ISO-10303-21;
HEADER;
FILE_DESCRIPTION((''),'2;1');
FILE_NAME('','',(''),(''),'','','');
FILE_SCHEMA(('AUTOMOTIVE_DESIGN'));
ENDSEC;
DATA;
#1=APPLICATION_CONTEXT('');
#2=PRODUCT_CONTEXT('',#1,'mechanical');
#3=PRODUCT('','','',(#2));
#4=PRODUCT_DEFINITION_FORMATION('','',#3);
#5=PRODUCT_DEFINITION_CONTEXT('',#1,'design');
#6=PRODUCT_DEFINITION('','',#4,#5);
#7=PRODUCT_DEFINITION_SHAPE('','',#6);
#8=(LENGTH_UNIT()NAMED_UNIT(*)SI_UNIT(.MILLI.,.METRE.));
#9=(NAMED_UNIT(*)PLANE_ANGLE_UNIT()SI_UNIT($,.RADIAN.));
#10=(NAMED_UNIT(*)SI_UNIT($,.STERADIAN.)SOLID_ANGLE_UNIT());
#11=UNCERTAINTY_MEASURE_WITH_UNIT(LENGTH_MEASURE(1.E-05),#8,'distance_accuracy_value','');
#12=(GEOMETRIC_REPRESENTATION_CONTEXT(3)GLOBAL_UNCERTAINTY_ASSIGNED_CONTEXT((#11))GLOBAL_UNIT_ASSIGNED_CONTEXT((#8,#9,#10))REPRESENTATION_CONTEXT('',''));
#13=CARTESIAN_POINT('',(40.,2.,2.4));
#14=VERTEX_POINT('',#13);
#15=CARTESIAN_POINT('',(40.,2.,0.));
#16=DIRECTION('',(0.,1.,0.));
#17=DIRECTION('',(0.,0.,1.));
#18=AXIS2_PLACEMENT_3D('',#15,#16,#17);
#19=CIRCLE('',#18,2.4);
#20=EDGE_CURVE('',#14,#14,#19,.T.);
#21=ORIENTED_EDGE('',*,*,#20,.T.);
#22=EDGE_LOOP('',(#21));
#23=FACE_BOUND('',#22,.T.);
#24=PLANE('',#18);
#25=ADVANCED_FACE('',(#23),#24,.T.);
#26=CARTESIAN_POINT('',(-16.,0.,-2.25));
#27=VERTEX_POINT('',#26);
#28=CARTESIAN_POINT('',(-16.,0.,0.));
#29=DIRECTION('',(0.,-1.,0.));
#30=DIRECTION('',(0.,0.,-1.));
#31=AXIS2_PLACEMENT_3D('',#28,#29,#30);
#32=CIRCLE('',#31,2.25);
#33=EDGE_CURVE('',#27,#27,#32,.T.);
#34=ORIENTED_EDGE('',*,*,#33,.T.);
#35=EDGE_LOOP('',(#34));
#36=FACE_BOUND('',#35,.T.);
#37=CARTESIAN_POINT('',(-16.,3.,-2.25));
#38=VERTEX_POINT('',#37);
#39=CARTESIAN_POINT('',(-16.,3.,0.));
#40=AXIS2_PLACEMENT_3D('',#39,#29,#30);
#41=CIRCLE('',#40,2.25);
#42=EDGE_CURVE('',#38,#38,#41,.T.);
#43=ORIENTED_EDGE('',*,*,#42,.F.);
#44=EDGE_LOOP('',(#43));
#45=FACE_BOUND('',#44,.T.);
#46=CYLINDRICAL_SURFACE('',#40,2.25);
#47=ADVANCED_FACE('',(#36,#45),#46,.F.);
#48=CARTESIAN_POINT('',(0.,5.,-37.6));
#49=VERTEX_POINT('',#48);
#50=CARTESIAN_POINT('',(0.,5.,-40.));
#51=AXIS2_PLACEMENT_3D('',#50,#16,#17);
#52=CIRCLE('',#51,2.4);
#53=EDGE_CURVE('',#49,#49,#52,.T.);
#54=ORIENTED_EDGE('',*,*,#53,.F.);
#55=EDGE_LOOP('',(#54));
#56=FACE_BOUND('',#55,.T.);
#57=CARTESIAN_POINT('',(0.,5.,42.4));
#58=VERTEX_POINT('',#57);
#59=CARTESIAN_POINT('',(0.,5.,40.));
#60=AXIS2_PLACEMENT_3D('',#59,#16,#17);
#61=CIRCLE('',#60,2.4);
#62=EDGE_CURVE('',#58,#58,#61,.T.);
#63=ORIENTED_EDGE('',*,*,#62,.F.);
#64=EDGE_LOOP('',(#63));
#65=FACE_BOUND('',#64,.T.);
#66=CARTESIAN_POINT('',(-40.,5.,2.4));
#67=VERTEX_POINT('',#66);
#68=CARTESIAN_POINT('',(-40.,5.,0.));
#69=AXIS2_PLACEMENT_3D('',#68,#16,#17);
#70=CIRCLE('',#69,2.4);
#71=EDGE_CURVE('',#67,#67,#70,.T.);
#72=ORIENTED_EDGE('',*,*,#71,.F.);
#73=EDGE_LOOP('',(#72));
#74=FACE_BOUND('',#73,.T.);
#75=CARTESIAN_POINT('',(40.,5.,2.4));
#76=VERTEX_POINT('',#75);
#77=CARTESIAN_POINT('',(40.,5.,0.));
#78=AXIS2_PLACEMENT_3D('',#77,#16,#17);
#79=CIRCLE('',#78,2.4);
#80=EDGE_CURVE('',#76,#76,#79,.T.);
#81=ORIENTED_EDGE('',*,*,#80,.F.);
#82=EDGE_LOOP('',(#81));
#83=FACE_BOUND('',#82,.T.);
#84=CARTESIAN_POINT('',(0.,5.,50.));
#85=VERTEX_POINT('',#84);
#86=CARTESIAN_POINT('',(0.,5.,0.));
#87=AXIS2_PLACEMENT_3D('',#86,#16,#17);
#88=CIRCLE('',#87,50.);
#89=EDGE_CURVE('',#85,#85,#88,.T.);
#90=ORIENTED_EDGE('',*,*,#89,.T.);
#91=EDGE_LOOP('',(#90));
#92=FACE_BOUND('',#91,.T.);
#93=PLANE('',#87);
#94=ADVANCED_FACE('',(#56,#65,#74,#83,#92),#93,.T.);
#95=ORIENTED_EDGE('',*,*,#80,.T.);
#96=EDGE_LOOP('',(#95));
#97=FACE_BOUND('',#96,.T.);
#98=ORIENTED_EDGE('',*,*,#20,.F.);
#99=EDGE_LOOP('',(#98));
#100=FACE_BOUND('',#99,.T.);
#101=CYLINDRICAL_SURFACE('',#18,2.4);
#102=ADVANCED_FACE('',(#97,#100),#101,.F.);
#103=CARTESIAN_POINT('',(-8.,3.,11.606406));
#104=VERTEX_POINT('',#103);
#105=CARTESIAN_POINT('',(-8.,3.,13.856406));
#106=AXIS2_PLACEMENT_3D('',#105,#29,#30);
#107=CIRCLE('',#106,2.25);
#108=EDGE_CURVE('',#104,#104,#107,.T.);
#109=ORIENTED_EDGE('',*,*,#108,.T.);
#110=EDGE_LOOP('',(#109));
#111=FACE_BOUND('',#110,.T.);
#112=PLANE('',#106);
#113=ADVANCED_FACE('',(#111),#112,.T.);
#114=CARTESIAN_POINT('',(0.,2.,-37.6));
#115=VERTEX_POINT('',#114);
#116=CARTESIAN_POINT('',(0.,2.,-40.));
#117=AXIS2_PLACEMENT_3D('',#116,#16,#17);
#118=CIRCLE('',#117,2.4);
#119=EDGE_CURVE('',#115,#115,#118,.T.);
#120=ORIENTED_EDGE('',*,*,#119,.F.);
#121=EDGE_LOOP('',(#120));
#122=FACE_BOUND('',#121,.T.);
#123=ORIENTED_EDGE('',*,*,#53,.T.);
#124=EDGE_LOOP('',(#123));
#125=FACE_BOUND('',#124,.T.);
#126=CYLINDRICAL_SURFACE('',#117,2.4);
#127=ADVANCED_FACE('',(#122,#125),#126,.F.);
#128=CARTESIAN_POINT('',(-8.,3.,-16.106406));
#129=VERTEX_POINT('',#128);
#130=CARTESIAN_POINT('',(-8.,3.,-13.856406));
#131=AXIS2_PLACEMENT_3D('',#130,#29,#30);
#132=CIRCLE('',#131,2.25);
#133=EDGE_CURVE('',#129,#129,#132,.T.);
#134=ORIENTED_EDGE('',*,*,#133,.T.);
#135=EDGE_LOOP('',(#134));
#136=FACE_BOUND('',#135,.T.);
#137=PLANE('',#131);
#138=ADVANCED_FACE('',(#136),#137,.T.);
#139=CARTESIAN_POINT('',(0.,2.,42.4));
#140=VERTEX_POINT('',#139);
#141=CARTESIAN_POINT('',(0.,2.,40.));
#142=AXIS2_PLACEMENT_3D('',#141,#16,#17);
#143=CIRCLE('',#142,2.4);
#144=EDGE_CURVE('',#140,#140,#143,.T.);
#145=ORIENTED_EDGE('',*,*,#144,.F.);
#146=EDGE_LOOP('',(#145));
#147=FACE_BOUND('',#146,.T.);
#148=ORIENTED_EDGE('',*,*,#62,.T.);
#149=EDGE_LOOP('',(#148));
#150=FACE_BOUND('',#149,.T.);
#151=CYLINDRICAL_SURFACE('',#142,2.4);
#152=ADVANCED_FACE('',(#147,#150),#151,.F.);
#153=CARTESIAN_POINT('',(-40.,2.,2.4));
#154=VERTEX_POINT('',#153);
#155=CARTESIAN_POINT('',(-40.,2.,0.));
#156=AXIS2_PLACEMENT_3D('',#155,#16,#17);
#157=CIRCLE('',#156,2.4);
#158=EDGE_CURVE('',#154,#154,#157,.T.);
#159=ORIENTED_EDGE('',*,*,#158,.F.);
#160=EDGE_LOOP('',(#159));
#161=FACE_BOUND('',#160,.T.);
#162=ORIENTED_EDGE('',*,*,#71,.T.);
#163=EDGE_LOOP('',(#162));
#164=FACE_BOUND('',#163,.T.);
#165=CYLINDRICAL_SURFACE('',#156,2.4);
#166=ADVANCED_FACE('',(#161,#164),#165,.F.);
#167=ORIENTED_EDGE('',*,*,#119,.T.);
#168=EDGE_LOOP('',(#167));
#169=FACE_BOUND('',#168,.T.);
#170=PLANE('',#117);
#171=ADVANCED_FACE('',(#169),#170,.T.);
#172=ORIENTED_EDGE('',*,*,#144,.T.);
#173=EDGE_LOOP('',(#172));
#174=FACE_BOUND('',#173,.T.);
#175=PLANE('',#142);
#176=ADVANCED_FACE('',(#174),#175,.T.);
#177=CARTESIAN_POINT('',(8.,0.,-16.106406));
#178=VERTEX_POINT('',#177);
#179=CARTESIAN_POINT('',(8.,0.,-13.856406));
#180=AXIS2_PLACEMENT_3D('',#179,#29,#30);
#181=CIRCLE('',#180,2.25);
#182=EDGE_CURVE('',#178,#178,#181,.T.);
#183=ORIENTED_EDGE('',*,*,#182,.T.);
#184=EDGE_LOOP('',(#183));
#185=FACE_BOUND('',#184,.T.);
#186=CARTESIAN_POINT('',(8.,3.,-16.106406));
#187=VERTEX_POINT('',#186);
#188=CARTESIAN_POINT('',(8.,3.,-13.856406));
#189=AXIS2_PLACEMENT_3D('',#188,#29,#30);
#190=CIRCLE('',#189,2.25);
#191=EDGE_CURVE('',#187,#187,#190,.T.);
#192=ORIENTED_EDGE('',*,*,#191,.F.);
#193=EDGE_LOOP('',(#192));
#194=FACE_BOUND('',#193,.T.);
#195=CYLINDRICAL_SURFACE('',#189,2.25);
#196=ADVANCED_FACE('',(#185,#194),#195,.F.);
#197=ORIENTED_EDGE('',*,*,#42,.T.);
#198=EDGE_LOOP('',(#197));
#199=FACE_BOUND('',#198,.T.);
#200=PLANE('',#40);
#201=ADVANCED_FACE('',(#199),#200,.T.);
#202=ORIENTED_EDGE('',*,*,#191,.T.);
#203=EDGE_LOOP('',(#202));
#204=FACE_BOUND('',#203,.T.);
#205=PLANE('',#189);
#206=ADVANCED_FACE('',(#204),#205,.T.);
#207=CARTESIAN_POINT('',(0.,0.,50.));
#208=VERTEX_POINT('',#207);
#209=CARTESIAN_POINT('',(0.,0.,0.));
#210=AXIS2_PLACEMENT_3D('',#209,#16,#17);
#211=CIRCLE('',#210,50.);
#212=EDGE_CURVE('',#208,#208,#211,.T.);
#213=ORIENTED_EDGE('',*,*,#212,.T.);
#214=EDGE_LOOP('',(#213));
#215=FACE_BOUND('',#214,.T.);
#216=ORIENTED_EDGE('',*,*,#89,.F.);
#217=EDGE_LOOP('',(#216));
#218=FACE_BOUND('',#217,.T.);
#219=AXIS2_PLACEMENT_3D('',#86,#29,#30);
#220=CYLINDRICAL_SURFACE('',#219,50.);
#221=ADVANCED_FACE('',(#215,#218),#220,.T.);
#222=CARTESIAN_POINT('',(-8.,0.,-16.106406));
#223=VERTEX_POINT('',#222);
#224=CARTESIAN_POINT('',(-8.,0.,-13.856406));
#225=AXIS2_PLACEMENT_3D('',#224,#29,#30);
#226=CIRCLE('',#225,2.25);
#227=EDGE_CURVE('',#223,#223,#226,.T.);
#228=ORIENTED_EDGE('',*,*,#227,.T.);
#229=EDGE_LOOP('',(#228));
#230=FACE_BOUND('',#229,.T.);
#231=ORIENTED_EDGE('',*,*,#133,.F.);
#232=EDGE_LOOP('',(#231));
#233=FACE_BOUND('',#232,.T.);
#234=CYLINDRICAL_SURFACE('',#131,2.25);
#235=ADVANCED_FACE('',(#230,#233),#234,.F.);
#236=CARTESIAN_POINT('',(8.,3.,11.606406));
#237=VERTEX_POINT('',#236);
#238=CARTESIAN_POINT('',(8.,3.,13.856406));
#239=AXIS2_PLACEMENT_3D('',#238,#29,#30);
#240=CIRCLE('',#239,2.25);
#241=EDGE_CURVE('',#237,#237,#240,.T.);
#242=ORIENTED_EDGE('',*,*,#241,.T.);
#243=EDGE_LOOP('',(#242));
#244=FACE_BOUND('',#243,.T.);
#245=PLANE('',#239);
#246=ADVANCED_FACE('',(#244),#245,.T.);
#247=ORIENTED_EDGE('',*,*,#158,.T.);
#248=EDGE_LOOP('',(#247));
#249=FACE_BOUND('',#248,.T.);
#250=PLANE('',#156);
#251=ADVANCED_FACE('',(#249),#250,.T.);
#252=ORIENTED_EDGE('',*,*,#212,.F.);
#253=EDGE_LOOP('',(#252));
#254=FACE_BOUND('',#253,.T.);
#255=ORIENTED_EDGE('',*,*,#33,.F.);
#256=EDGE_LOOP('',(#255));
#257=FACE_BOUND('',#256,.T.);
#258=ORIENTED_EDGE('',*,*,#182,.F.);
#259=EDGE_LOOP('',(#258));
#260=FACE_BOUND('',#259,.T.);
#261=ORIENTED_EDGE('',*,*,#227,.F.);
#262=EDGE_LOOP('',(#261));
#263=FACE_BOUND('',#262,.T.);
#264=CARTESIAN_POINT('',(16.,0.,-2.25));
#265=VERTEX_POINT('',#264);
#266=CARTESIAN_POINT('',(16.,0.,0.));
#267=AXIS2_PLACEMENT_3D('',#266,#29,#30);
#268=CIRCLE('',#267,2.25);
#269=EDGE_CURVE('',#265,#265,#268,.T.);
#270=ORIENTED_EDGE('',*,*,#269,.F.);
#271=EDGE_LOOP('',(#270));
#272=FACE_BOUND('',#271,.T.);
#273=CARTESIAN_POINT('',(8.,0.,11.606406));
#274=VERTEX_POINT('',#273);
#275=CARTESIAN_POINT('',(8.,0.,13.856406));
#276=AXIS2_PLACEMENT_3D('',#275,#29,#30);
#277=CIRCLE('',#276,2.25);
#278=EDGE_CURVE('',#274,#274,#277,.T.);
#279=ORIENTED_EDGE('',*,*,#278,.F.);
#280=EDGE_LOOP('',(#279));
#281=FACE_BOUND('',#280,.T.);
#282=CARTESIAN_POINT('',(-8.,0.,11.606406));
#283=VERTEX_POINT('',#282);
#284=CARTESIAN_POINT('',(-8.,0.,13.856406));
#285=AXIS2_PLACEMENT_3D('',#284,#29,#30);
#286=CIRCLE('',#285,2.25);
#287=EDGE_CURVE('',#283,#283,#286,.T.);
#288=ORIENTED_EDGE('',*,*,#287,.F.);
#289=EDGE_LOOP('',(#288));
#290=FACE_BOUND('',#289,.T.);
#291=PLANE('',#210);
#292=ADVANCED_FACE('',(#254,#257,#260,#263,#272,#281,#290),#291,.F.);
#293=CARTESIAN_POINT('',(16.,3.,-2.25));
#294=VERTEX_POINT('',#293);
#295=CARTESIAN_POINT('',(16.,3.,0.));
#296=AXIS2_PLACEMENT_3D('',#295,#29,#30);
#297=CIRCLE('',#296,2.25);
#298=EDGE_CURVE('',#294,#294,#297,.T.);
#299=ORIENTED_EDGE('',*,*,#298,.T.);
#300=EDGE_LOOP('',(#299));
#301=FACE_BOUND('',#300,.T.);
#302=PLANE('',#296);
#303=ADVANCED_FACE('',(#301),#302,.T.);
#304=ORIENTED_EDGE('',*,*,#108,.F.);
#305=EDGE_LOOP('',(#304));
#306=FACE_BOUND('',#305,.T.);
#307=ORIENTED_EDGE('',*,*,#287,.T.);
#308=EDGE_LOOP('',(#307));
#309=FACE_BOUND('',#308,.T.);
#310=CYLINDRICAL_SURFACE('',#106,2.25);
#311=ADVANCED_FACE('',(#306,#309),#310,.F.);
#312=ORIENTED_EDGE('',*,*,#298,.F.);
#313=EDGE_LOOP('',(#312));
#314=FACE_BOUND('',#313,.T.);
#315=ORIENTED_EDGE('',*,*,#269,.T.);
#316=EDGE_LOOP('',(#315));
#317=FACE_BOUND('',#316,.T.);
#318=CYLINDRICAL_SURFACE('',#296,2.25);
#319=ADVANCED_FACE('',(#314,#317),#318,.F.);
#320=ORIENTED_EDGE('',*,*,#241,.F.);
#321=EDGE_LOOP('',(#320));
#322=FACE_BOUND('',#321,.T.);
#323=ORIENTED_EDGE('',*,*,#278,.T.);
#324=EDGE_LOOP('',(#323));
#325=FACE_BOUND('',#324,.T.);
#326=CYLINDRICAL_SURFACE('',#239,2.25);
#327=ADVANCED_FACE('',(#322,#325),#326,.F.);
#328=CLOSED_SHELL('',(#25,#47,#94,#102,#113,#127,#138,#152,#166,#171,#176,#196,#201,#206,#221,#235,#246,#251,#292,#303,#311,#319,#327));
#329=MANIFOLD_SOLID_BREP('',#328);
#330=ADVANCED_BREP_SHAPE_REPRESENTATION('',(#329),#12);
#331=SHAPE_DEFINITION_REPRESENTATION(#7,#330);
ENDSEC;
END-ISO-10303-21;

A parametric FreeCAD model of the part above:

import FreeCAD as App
import Part
import Sketcher

doc = App.newDocument("Part")
params = doc.addObject("Spreadsheet::Sheet", "Params")
for row, (alias, value) in enumerate([
    ("sketch1_diameter", "100 mm"),
    ("pad1_length", "5 mm"),
    ("sketch2_diameter", "4.5 mm"),
    ("pocket1_length", "3 mm"),
    ("sketch3_diameter", "4.8 mm"),
    ("pocket2_length", "3 mm"),
], start=1):
    params.set(f"A{row}", alias)
    params.set(f"B{row}", "=" + value)
    params.setAlias(f"B{row}", alias)

body = doc.addObject("PartDesign::Body", "Body")

# Sketch on XZ plane
sketch1 = body.newObject("Sketcher::SketchObject", "Sketch")
sketch1.AttachmentSupport = (doc.getObject("XZ_Plane"), [""])
sketch1.MapMode = "FlatFace"
sketch1.addGeometry(Part.Circle(App.Vector(0, 0, 0), App.Vector(0, 0, 1), 50), False)
sketch1.addConstraint(Sketcher.Constraint("Coincident", 0, 3, -1, 1))
sketch1.addConstraint(Sketcher.Constraint("Diameter", 0, 100.0))
sketch1.setExpression("Constraints[1]", "Params.sketch1_diameter")
pad1 = body.newObject("PartDesign::Pad", "Pad")
pad1.Profile = sketch1
pad1.setExpression("Length", "Params.pad1_length")
pad1.Reversed = True

# Sketch on XZ plane
sketch2 = body.newObject("Sketcher::SketchObject", "Sketch001")
sketch2.AttachmentSupport = (doc.getObject("XZ_Plane"), [""])
sketch2.MapMode = "FlatFace"
sketch2.addGeometry(Part.Circle(App.Vector(8, 13.9, 0), App.Vector(0, 0, 1), 2.2), False)
sketch2.addGeometry(Part.Circle(App.Vector(16, 0, 0), App.Vector(0, 0, 1), 2.2), False)
sketch2.addGeometry(Part.Circle(App.Vector(8, -13.9, 0), App.Vector(0, 0, 1), 2.2), False)
sketch2.addGeometry(Part.Circle(App.Vector(-8, -13.9, 0), App.Vector(0, 0, 1), 2.2), False)
sketch2.addGeometry(Part.Circle(App.Vector(-16, 0, 0), App.Vector(0, 0, 1), 2.2), False)
sketch2.addGeometry(Part.Circle(App.Vector(-8, 13.9, 0), App.Vector(0, 0, 1), 2.2), False)
sketch2.addConstraint(Sketcher.Constraint("Equal", 0, 1))
sketch2.addConstraint(Sketcher.Constraint("Equal", 1, 2))
sketch2.addConstraint(Sketcher.Constraint("Equal", 2, 3))
sketch2.addConstraint(Sketcher.Constraint("Equal", 3, 4))
sketch2.addConstraint(Sketcher.Constraint("Equal", 4, 5))
sketch2.addConstraint(Sketcher.Constraint("Symmetric", 0, 3, 3, 3, -1, 1))
sketch2.addConstraint(Sketcher.Constraint("Symmetric", 1, 3, 4, 3, -1, 1))
sketch2.addConstraint(Sketcher.Constraint("Symmetric", 2, 3, 5, 3, -1, 1))
sketch2.addConstraint(Sketcher.Constraint("Symmetric", 2, 3, 3, 3, -2))
sketch2.addConstraint(Sketcher.Constraint("PointOnObject", 1, 3, -1))
sketch2.addConstraint(Sketcher.Constraint("Diameter", 0, 4.5))
sketch2.addConstraint(Sketcher.Constraint("DistanceX", -1, 1, 0, 3, 8.0))
sketch2.addConstraint(Sketcher.Constraint("DistanceX", -1, 1, 1, 3, 16.0))
sketch2.addConstraint(Sketcher.Constraint("DistanceY", -1, 1, 0, 3, 13.856406))
sketch2.setExpression("Constraints[10]", "Params.sketch2_diameter")
pocket1 = body.newObject("PartDesign::Pocket", "Pocket")
pocket1.Profile = sketch2
pocket1.setExpression("Length", "Params.pocket1_length")

# Sketch on XZ plane
sketch3 = body.newObject("Sketcher::SketchObject", "Sketch002")
sketch3.AttachmentSupport = (doc.getObject("XZ_Plane"), [""])
sketch3.MapMode = "FlatFace"
sketch3.AttachmentOffset = App.Placement(App.Vector(0, 0, -5), App.Rotation())
sketch3.addGeometry(Part.Circle(App.Vector(0, -40, 0), App.Vector(0, 0, 1), 2.4), False)
sketch3.addGeometry(Part.Circle(App.Vector(40, 0, 0), App.Vector(0, 0, 1), 2.4), False)
sketch3.addGeometry(Part.Circle(App.Vector(0, 40, 0), App.Vector(0, 0, 1), 2.4), False)
sketch3.addGeometry(Part.Circle(App.Vector(-40, 0, 0), App.Vector(0, 0, 1), 2.4), False)
sketch3.addConstraint(Sketcher.Constraint("Equal", 0, 1))
sketch3.addConstraint(Sketcher.Constraint("Equal", 1, 2))
sketch3.addConstraint(Sketcher.Constraint("Equal", 2, 3))
sketch3.addConstraint(Sketcher.Constraint("Symmetric", 0, 3, 2, 3, -1, 1))
sketch3.addConstraint(Sketcher.Constraint("Symmetric", 1, 3, 3, 3, -1, 1))
sketch3.addConstraint(Sketcher.Constraint("PointOnObject", 0, 3, -2))
sketch3.addConstraint(Sketcher.Constraint("PointOnObject", 1, 3, -1))
sketch3.addConstraint(Sketcher.Constraint("Diameter", 0, 4.8))
sketch3.addConstraint(Sketcher.Constraint("DistanceY", 0, 3, -1, 1, 40.0))
sketch3.addConstraint(Sketcher.Constraint("DistanceX", -1, 1, 1, 3, 40.0))
sketch3.setExpression("Constraints[7]", "Params.sketch3_diameter")
pocket2 = body.newObject("PartDesign::Pocket", "Pocket001")
pocket2.Profile = sketch3
pocket2.setExpression("Length", "Params.pocket2_length")
pocket2.Reversed = True

doc.recompute()
